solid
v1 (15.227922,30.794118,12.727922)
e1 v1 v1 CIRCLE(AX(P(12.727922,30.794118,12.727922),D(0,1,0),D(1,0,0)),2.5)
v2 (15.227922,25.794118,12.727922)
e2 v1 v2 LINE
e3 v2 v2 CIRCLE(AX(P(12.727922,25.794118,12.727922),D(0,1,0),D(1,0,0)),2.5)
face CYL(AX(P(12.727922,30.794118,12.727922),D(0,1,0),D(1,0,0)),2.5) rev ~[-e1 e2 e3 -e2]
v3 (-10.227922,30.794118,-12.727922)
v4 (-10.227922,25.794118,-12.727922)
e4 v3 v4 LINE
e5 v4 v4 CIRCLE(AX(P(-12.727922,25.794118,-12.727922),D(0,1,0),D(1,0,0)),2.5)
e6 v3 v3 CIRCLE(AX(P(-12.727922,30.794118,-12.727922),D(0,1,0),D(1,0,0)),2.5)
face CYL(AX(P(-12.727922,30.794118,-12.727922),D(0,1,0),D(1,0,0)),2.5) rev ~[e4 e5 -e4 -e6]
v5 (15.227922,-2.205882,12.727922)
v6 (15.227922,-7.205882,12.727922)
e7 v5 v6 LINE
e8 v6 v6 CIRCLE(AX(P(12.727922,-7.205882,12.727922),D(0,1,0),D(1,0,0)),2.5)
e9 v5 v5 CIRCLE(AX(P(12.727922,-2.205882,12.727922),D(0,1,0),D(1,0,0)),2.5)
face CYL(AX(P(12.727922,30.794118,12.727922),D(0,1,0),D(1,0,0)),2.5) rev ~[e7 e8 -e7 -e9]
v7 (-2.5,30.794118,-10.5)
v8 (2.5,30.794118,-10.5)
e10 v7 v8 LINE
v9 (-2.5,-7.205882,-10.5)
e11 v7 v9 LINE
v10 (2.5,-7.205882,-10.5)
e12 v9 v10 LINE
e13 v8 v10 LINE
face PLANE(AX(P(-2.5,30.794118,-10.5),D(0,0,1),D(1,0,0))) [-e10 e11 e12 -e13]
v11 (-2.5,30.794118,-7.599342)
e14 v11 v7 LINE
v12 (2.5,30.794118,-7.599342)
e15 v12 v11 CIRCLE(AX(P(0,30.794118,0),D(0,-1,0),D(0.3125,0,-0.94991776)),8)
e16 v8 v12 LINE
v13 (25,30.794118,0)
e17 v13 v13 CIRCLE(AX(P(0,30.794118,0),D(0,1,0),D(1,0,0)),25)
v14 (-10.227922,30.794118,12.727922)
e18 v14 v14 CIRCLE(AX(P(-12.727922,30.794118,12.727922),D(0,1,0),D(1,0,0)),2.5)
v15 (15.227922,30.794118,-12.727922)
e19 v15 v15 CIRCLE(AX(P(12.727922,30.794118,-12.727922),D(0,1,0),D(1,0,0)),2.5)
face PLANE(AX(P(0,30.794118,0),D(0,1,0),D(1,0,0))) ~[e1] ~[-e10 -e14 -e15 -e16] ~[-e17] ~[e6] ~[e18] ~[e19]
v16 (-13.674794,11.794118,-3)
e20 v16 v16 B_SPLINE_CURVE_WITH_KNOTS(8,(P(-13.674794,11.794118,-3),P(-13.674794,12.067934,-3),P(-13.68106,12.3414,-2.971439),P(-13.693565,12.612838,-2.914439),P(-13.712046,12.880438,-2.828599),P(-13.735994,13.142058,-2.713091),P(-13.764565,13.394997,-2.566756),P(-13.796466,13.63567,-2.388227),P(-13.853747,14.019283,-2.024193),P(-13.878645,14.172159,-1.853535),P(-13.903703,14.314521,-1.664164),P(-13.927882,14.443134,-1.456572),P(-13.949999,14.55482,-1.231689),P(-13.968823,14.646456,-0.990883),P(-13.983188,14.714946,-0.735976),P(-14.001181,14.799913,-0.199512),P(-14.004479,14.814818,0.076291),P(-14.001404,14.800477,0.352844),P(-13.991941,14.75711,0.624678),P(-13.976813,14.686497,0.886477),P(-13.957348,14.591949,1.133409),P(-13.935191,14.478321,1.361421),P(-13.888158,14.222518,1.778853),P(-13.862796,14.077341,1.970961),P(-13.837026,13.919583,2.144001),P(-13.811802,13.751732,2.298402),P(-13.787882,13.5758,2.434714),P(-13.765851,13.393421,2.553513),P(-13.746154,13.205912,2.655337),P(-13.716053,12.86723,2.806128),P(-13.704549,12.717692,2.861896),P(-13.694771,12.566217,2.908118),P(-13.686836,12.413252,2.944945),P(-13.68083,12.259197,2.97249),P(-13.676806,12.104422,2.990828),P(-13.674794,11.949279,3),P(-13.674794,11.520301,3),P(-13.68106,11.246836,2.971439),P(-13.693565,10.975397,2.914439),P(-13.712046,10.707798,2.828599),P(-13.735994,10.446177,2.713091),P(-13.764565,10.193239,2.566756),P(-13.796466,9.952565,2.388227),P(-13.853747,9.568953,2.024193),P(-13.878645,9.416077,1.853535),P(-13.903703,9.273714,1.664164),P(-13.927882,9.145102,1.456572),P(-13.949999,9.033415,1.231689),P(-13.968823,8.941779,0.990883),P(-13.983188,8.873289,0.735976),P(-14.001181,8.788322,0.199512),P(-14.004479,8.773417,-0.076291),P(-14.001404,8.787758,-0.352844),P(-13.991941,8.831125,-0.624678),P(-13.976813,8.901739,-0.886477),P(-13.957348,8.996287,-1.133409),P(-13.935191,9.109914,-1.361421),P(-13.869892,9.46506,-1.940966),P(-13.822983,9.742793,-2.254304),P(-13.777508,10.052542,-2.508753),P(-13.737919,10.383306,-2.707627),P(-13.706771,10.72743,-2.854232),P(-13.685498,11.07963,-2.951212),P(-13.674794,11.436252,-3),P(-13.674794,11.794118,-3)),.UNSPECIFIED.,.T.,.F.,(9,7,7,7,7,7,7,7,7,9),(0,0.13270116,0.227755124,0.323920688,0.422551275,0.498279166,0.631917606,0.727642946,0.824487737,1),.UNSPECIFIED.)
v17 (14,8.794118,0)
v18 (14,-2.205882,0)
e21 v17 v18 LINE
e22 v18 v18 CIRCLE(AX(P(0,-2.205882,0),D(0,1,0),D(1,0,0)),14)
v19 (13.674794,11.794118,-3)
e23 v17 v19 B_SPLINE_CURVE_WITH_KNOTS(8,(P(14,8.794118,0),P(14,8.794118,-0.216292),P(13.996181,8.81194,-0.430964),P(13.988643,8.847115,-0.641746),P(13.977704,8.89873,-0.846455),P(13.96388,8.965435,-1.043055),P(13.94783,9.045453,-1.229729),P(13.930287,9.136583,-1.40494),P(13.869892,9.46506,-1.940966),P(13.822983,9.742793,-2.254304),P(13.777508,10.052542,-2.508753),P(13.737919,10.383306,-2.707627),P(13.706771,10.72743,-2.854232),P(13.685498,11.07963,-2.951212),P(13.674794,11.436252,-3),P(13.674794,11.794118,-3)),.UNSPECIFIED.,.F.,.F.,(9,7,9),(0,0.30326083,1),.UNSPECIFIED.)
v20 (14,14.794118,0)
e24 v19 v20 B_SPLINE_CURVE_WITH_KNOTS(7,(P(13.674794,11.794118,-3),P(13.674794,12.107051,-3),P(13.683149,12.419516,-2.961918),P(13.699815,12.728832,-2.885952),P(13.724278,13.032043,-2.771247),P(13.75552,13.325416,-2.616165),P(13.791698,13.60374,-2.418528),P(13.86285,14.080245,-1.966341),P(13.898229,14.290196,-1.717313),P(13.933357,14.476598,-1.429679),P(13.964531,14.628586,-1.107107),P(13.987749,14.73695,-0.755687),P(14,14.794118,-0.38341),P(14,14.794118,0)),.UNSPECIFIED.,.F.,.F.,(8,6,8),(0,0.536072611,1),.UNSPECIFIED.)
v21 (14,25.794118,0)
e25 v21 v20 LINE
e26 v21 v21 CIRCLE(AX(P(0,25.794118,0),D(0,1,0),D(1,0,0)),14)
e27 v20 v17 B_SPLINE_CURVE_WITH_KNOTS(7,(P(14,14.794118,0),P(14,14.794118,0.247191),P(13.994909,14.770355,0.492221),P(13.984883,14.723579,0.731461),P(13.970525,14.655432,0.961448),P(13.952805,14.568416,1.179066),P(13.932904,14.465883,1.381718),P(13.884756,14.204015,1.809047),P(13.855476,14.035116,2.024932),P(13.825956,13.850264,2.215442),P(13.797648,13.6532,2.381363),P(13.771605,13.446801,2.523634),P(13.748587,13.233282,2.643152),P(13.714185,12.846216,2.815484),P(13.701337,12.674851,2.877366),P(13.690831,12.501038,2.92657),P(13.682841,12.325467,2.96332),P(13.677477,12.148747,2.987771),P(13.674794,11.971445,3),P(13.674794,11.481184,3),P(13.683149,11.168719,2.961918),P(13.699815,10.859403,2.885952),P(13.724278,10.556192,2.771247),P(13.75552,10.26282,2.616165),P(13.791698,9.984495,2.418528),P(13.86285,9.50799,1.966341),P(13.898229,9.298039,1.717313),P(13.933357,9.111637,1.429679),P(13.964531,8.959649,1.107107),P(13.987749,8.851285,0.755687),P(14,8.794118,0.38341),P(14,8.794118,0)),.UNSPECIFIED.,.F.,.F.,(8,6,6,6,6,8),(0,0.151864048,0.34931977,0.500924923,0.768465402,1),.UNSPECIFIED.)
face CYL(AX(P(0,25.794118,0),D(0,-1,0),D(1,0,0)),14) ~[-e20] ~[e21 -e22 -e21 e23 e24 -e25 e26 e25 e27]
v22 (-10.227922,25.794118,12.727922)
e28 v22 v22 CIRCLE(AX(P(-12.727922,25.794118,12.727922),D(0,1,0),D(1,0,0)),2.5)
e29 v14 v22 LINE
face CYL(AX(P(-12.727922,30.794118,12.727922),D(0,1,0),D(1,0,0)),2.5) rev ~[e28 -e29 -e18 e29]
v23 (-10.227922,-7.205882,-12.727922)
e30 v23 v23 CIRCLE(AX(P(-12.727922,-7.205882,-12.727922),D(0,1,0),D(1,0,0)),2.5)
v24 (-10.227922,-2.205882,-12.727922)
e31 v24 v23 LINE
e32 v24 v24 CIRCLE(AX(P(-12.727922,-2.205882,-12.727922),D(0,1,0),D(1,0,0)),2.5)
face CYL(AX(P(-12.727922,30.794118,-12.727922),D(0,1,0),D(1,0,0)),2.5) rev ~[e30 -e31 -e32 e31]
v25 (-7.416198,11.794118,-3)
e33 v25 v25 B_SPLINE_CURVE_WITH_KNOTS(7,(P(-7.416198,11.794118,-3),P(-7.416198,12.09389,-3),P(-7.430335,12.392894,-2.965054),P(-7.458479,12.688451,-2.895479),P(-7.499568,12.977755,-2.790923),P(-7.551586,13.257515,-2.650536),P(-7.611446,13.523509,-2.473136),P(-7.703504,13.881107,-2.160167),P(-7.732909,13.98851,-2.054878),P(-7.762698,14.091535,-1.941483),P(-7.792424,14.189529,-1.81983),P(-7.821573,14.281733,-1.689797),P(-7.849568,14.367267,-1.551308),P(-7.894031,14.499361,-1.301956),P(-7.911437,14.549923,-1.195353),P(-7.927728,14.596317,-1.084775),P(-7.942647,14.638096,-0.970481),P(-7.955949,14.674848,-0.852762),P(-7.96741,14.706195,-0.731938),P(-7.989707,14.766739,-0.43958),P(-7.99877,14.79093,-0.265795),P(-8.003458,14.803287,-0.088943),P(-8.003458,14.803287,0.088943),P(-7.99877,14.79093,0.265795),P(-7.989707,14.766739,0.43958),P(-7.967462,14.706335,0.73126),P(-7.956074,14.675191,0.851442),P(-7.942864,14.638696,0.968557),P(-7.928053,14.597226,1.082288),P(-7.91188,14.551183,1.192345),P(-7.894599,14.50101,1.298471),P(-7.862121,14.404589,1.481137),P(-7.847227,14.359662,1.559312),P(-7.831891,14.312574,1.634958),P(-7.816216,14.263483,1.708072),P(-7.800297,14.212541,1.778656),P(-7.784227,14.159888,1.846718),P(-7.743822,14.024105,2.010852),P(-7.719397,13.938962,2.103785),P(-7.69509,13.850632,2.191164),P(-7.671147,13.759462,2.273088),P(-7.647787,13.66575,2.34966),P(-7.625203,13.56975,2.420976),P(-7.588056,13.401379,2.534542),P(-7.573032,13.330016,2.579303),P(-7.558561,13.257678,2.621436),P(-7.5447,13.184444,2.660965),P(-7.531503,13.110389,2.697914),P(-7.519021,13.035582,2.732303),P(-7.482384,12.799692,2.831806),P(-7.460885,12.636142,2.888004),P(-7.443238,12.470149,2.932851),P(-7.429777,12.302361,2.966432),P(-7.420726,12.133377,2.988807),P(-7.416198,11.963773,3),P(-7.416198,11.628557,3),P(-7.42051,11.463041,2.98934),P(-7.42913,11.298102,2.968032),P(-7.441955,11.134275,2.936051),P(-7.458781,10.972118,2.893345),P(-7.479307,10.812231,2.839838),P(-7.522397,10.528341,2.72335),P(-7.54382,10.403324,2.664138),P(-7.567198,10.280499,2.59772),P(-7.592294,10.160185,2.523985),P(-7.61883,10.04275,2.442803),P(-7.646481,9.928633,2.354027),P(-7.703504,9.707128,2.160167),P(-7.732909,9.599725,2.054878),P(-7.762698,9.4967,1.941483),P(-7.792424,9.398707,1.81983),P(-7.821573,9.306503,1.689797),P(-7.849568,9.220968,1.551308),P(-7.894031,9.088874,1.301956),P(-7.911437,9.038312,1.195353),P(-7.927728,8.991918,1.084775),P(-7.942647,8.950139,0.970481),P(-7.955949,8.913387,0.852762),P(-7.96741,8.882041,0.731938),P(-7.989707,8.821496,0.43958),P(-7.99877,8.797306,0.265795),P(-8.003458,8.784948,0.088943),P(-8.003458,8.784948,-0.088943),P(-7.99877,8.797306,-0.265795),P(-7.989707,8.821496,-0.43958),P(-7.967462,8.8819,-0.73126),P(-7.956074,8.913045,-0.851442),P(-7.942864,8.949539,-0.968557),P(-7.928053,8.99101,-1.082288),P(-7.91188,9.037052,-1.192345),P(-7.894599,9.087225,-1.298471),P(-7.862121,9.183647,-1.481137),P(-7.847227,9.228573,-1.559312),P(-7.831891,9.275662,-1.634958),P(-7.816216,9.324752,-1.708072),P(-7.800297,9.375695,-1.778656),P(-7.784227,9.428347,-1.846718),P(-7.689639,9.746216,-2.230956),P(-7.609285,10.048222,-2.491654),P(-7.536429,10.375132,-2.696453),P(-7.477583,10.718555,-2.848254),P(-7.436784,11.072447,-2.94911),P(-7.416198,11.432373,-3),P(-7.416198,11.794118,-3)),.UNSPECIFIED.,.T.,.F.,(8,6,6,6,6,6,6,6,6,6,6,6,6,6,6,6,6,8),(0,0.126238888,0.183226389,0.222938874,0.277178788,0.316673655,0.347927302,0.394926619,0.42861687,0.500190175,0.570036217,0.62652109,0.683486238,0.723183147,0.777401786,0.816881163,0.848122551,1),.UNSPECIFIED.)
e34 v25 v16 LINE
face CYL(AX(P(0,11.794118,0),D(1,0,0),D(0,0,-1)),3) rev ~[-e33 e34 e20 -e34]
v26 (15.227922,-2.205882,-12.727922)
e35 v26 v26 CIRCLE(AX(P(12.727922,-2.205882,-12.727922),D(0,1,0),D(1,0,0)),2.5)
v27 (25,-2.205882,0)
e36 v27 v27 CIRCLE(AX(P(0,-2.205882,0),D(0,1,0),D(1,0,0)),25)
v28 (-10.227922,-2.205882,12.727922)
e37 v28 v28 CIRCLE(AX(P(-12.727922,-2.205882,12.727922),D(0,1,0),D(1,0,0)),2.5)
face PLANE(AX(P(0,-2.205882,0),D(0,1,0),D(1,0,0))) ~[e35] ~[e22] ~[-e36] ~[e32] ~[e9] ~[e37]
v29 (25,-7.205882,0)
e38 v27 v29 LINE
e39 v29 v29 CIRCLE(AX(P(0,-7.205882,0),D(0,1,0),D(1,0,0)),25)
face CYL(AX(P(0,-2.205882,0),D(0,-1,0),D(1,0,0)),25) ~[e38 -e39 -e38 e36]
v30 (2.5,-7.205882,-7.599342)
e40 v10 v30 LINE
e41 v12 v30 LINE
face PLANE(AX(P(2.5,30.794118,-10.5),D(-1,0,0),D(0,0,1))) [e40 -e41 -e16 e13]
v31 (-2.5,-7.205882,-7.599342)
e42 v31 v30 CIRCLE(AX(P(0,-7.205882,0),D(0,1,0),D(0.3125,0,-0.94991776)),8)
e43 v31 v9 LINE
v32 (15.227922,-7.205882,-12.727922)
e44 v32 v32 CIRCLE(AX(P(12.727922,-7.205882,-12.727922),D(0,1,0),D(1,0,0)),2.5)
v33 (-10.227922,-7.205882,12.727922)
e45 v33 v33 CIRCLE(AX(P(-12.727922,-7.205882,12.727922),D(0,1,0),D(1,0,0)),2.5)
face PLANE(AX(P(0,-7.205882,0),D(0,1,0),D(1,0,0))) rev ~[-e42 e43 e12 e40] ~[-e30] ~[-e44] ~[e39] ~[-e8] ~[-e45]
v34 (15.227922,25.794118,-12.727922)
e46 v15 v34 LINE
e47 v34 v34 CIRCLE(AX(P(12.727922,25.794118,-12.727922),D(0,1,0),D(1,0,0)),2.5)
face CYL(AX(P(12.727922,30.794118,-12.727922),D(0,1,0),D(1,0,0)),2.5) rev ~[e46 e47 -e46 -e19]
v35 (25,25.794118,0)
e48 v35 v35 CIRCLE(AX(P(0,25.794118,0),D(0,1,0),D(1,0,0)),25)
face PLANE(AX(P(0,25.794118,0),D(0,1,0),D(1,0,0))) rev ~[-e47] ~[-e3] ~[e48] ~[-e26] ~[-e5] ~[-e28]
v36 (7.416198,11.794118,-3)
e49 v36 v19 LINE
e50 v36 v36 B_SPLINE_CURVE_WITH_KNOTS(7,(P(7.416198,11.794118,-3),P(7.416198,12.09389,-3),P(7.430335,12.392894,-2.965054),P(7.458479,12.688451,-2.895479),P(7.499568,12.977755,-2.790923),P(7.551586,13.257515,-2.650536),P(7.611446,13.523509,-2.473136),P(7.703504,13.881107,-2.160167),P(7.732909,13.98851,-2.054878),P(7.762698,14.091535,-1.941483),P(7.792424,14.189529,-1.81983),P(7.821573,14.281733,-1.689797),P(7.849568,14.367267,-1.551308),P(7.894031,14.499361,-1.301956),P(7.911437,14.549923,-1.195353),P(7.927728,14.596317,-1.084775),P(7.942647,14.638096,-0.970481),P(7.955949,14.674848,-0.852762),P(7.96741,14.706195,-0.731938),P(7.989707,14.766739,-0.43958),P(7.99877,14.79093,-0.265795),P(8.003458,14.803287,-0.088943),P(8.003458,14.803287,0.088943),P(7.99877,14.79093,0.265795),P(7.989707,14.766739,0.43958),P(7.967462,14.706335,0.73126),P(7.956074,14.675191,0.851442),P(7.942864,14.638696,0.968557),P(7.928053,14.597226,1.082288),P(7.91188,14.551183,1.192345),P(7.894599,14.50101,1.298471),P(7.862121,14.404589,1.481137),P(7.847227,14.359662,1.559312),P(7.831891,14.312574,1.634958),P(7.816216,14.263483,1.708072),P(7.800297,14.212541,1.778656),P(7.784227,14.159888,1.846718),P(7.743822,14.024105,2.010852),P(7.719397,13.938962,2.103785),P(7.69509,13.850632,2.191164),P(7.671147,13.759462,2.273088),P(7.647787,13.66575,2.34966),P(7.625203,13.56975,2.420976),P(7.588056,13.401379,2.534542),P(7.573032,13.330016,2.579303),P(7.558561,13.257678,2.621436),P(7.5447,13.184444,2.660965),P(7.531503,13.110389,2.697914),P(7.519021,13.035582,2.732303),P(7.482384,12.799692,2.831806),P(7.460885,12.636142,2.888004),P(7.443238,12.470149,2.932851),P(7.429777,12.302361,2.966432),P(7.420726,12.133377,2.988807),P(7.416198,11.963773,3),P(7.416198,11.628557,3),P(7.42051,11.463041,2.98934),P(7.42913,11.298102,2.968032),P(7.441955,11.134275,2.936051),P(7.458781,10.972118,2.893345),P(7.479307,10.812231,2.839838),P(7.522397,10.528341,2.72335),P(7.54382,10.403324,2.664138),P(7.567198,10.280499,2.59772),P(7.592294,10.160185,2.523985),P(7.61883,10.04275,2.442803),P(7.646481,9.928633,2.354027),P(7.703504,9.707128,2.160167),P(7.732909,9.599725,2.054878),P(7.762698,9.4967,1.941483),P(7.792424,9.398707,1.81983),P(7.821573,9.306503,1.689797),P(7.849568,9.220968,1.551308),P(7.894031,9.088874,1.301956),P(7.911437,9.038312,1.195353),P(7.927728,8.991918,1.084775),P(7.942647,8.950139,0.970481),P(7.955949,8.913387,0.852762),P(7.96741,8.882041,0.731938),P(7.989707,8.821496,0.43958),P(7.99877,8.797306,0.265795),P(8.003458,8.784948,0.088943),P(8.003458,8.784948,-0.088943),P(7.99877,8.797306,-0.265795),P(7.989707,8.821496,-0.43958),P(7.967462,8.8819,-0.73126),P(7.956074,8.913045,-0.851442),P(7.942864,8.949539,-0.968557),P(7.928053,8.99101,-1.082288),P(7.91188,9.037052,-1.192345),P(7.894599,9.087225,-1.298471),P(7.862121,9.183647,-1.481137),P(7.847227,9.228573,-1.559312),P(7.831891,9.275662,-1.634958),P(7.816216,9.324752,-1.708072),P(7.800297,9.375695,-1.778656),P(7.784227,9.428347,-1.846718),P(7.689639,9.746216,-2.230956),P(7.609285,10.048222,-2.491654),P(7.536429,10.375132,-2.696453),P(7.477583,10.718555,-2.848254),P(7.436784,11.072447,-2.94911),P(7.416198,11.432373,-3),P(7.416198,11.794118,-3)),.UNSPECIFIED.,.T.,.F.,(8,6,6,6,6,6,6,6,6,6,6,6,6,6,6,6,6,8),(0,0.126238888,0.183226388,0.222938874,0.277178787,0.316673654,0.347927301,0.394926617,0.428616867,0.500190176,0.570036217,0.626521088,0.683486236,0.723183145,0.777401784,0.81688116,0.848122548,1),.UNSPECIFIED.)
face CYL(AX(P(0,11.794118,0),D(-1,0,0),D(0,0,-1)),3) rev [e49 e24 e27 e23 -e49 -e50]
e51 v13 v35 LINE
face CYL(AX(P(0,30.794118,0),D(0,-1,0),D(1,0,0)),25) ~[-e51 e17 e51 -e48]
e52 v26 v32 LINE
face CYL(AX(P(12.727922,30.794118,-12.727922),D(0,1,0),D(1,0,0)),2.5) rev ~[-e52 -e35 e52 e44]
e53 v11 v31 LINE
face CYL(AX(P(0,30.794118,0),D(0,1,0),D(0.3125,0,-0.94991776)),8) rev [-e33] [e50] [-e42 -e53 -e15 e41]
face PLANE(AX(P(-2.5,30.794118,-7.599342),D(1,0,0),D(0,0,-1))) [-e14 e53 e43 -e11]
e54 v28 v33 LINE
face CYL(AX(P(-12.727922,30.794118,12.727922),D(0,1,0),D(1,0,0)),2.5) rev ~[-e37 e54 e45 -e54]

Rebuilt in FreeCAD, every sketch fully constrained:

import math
import FreeCAD as App
import Part
import Sketcher
from FreeCAD import Vector


def add_polygon(sketch, points):
    """Adds a closed chain of lines whose ends are joined by coincident constraints."""
    first, n = sketch.GeometryCount, len(points)
    for a, b in zip(points, points[1:] + points[:1]):
        sketch.addGeometry(Part.LineSegment(App.Vector(*a, 0), App.Vector(*b, 0)), False)
    for i in range(n):
        sketch.addConstraint(Sketcher.Constraint("Coincident", first + i, 2, first + (i + 1) % n, 1))

doc = App.newDocument("Part")
params = doc.addObject("Spreadsheet::Sheet", "Params")
for row, (alias, value) in enumerate([
    ("sketch1_width", "25 mm"),
    ("sketch1_width2", "11 mm"),
    ("sketch1_height", "38 mm"),
    ("sketch1_height2", "5 mm"),
    ("revolution_angle", "360 deg"),
    ("sketch2_diameter", "5 mm"),
    ("sketch2_radius", "8 mm"),
    ("sketch2_width", "5 mm"),
    ("sketch3_diameter", "6 mm"),
], start=1):
    params.set(f"A{row}", alias)
    params.set(f"B{row}", "=" + value)
    params.setAlias(f"B{row}", alias)

body = doc.addObject("PartDesign::Body", "Body")

# Sketch on XY plane
sketch1 = body.newObject("Sketcher::SketchObject", "Sketch")
sketch1.AttachmentSupport = (doc.getObject("XY_Plane"), [""])
sketch1.MapMode = "FlatFace"
add_polygon(sketch1, [(25, 31), (0, 31), (0, -7), (25, -7), (25, -2), (14, -2), (14, 26), (25, 26)])  # lines 0-7
sketch1.addConstraint([
    Sketcher.Constraint("Horizontal", 0),
    Sketcher.Constraint("Vertical", 1),
    Sketcher.Constraint("Horizontal", 2),
    Sketcher.Constraint("Vertical", 3),
    Sketcher.Constraint("Horizontal", 4),
    Sketcher.Constraint("Vertical", 5),
    Sketcher.Constraint("Horizontal", 6),
    Sketcher.Constraint("Vertical", 7),
    Sketcher.Constraint("PointOnObject", 0, 2, -2),
    Sketcher.Constraint("Vertical", 3, 2, 6, 2),
    Sketcher.Constraint("Equal", 3, 7),
    Sketcher.Constraint("DistanceX", 0, 2, 0, 1, 25.0),
    Sketcher.Constraint("DistanceX", 4, 2, 4, 1, 11.0),
    Sketcher.Constraint("DistanceY", 1, 2, 1, 1, 38.0),
    Sketcher.Constraint("DistanceY", 3, 1, 3, 2, 5.0),
    Sketcher.Constraint("DistanceY", -1, 1, 0, 2, 30.794118),
])
sketch1.setExpression("Constraints[19]", "Params.sketch1_width")
sketch1.setExpression("Constraints[20]", "Params.sketch1_width2")
sketch1.setExpression("Constraints[21]", "Params.sketch1_height")
sketch1.setExpression("Constraints[22]", "Params.sketch1_height2")
revolution = body.newObject("PartDesign::Revolution", "Revolution")
revolution.Profile = sketch1
revolution.ReferenceAxis = (sketch1, ["V_Axis"])
revolution.setExpression("Angle", "Params.revolution_angle")

# Sketch on XZ plane
sketch2 = body.newObject("Sketcher::SketchObject", "Sketch001")
sketch2.AttachmentSupport = (doc.getObject("XZ_Plane"), [""])
sketch2.MapMode = "FlatFace"
sketch2.AttachmentOffset = App.Placement(Vector(0, 0, -30.794118), App.Rotation())
sketch2.addGeometry([
    Part.Circle(Vector(12.7, -12.7, 0), Vector(0, 0, 1), 2.5),  # 0
    Part.Circle(Vector(12.7, 12.7, 0), Vector(0, 0, 1), 2.5),  # 1
    Part.Circle(Vector(-12.7, 12.7, 0), Vector(0, 0, 1), 2.5),  # 2
    Part.Circle(Vector(-12.7, -12.7, 0), Vector(0, 0, 1), 2.5),  # 3
    Part.LineSegment(Vector(-2.5, -10.5, 0), Vector(-2.5, -7.6, 0)),  # 4
    Part.ArcOfCircle(Part.Circle(Vector(0, 0, 0), Vector(0, 0, 1), 8), math.radians(-72), math.radians(252)),  # 5
    Part.LineSegment(Vector(2.5, -7.6, 0), Vector(2.5, -10.5, 0)),  # 6
    Part.LineSegment(Vector(2.5, -10.5, 0), Vector(-2.5, -10.5, 0)),  # 7
], False)
sketch2.addConstraint([
    Sketcher.Constraint("Coincident", 4, 2, 5, 2),
    Sketcher.Constraint("Coincident", 5, 1, 6, 1),
    Sketcher.Constraint("Coincident", 6, 2, 7, 1),
    Sketcher.Constraint("Coincident", 7, 2, 4, 1),
    Sketcher.Constraint("Vertical", 4),
    Sketcher.Constraint("Vertical", 6),
    Sketcher.Constraint("Horizontal", 7),
    Sketcher.Constraint("Coincident", 5, 3, -1, 1),
    Sketcher.Constraint("Equal", 0, 1),
    Sketcher.Constraint("Equal", 1, 2),
    Sketcher.Constraint("Equal", 2, 3),
    Sketcher.Constraint("Symmetric", 0, 3, 2, 3, -1, 1),
    Sketcher.Constraint("Symmetric", 1, 3, 3, 3, -1, 1),
    Sketcher.Constraint("Symmetric", 1, 3, 2, 3, -2),
    Sketcher.Constraint("Horizontal", 4, 2, 5, 1),
    Sketcher.Constraint("Diameter", 0, 5.0),
    Sketcher.Constraint("Radius", 5, 8.0),
    Sketcher.Constraint("DistanceX", 7, 2, 7, 1, 5.0),
    Sketcher.Constraint("DistanceY", 6, 2, -1, 1, 10.5),
    Sketcher.Constraint("DistanceY", 3, 3, 4, 2, 5.12858),
    Sketcher.Constraint("DistanceX", -1, 1, 0, 3, 12.727922),
])
sketch2.setExpression("Constraints[15]", "Params.sketch2_diameter")
sketch2.setExpression("Constraints[16]", "Params.sketch2_radius")
sketch2.setExpression("Constraints[17]", "Params.sketch2_width")
pocket1 = body.newObject("PartDesign::Pocket", "Pocket")
pocket1.Profile = sketch2
pocket1.Type = "ThroughAll"
pocket1.Reversed = True

# Sketch on YZ plane
sketch3 = body.newObject("Sketcher::SketchObject", "Sketch002")
sketch3.AttachmentSupport = (doc.getObject("YZ_Plane"), [""])
sketch3.MapMode = "FlatFace"
sketch3.addGeometry(Part.Circle(Vector(11.8, 0, 0), Vector(0, 0, 1), 3), False)
sketch3.addConstraint([
    Sketcher.Constraint("PointOnObject", 0, 3, -1),
    Sketcher.Constraint("Diameter", 0, 6.0),
    Sketcher.Constraint("DistanceX", -1, 1, 0, 3, 11.794118),
])
sketch3.setExpression("Constraints[1]", "Params.sketch3_diameter")
pocket2 = body.newObject("PartDesign::Pocket", "Pocket001")
pocket2.Profile = sketch3
pocket2.Type = "ThroughAll"
pocket2.Midplane = True

doc.recompute()
